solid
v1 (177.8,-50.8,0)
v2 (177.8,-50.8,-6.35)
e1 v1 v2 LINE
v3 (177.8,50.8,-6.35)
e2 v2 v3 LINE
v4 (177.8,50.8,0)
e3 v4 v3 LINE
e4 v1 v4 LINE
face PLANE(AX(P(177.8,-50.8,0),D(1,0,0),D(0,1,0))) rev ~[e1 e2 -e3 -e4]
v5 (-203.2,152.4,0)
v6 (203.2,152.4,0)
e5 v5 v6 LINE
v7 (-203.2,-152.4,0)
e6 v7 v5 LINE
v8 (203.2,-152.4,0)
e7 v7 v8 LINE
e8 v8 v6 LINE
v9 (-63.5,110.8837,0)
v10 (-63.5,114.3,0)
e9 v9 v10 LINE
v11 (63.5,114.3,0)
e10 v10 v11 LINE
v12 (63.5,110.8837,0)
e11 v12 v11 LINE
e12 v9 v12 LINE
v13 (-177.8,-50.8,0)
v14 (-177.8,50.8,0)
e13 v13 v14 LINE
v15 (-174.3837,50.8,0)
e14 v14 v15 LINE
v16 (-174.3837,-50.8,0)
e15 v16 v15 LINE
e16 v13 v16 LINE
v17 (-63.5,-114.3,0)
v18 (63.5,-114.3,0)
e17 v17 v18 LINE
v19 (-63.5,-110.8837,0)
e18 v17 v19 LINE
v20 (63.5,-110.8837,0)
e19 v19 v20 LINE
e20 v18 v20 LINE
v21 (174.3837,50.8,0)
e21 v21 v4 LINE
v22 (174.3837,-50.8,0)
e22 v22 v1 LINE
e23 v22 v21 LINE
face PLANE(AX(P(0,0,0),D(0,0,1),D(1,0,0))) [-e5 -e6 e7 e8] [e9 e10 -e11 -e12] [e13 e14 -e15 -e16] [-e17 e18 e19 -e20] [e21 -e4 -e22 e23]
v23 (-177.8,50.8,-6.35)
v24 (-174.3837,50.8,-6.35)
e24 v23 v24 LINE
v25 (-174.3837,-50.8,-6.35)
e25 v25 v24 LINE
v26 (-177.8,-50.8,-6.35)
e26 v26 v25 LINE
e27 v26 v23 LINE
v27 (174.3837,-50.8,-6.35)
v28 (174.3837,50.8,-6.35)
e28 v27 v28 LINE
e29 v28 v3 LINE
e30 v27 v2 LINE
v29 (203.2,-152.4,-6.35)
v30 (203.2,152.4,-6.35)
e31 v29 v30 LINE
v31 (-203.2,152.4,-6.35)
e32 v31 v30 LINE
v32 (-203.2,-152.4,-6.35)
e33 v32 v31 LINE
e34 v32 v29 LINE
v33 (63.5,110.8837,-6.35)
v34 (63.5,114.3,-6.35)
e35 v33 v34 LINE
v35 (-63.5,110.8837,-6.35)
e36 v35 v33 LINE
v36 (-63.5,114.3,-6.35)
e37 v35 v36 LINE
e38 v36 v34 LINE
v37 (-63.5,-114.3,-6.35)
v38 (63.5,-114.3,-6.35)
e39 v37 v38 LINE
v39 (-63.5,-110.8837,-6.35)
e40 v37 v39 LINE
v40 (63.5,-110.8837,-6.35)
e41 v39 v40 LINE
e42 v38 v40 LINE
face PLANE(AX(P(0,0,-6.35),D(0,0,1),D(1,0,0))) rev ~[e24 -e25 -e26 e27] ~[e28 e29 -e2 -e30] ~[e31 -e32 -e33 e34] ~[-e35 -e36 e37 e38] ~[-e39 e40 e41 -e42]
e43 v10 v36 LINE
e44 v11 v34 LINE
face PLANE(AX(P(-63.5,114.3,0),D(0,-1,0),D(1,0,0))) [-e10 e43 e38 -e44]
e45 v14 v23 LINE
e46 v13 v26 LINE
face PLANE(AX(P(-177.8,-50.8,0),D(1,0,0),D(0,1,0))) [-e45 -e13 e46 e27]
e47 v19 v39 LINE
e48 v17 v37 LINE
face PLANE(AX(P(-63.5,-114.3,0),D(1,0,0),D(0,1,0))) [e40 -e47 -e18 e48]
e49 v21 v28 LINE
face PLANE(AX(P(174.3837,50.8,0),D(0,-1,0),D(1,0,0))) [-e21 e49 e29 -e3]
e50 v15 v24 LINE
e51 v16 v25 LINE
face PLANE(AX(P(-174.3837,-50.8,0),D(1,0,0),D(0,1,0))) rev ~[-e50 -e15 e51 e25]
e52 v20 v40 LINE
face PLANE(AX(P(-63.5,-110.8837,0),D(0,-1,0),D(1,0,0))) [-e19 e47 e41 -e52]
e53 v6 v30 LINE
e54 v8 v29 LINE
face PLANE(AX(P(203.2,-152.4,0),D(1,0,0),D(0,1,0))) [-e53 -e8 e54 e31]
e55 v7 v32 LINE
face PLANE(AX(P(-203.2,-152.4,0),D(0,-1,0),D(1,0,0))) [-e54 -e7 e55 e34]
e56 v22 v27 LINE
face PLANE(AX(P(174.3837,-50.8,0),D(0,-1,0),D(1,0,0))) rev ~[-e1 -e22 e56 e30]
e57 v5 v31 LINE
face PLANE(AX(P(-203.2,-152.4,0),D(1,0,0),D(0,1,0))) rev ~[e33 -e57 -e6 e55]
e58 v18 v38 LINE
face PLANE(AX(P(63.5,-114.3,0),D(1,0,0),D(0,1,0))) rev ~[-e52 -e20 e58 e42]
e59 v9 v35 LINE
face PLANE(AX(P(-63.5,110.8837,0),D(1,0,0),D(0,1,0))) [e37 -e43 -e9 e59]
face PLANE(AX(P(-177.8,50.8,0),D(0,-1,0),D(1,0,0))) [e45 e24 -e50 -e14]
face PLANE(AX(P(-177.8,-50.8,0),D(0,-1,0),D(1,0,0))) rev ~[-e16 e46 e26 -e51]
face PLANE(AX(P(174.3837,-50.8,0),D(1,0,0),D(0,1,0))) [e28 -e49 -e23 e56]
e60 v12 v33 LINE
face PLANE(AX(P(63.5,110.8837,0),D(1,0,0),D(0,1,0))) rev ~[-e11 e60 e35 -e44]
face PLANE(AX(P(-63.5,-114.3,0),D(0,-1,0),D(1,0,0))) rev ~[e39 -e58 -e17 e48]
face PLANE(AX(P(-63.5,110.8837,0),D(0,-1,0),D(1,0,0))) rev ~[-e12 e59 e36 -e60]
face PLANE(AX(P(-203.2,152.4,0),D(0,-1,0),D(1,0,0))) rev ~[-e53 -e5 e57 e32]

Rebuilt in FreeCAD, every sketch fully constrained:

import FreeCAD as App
import Part
import Sketcher
from FreeCAD import Vector
Q = App.Units.Quantity

doc = App.newDocument("Part")
body = doc.addObject("PartDesign::Body", "Body")

# Sketch on XY plane
sketch1 = body.newObject("Sketcher::SketchObject", "Sketch")
sketch1.AttachmentSupport = (doc.getObject("XY_Plane"), [""])
sketch1.MapMode = "FlatFace"
sketch1.addGeometry(Part.LineSegment(Vector(-203.2, 152.4, 0), Vector(-203.2, -152.4, 0)), False)
sketch1.addGeometry(Part.LineSegment(Vector(-203.2, -152.4, 0), Vector(203.2, -152.4, 0)), False)
sketch1.addGeometry(Part.LineSegment(Vector(203.2, -152.4, 0), Vector(203.2, 152.4, 0)), False)
sketch1.addGeometry(Part.LineSegment(Vector(203.2, 152.4, 0), Vector(-203.2, 152.4, 0)), False)
sketch1.addGeometry(Part.LineSegment(Vector(63.5, -114.3, 0), Vector(-63.5, -114.3, 0)), False)
sketch1.addGeometry(Part.LineSegment(Vector(-63.5, -114.3, 0), Vector(-63.5, -110.9, 0)), False)
sketch1.addGeometry(Part.LineSegment(Vector(-63.5, -110.9, 0), Vector(63.5, -110.9, 0)), False)
sketch1.addGeometry(Part.LineSegment(Vector(63.5, -110.9, 0), Vector(63.5, -114.3, 0)), False)
sketch1.addGeometry(Part.LineSegment(Vector(-174.4, -50.8, 0), Vector(-177.8, -50.8, 0)), False)
sketch1.addGeometry(Part.LineSegment(Vector(-177.8, -50.8, 0), Vector(-177.8, 50.8, 0)), False)
sketch1.addGeometry(Part.LineSegment(Vector(-177.8, 50.8, 0), Vector(-174.4, 50.8, 0)), False)
sketch1.addGeometry(Part.LineSegment(Vector(-174.4, 50.8, 0), Vector(-174.4, -50.8, 0)), False)
sketch1.addGeometry(Part.LineSegment(Vector(177.8, -50.8, 0), Vector(174.4, -50.8, 0)), False)
sketch1.addGeometry(Part.LineSegment(Vector(174.4, -50.8, 0), Vector(174.4, 50.8, 0)), False)
sketch1.addGeometry(Part.LineSegment(Vector(174.4, 50.8, 0), Vector(177.8, 50.8, 0)), False)
sketch1.addGeometry(Part.LineSegment(Vector(177.8, 50.8, 0), Vector(177.8, -50.8, 0)), False)
sketch1.addGeometry(Part.LineSegment(Vector(63.5, 110.9, 0), Vector(-63.5, 110.9, 0)), False)
sketch1.addGeometry(Part.LineSegment(Vector(-63.5, 110.9, 0), Vector(-63.5, 114.3, 0)), False)
sketch1.addGeometry(Part.LineSegment(Vector(-63.5, 114.3, 0), Vector(63.5, 114.3, 0)), False)
sketch1.addGeometry(Part.LineSegment(Vector(63.5, 114.3, 0), Vector(63.5, 110.9, 0)), False)
sketch1.addConstraint(Sketcher.Constraint("Coincident", 0, 2, 1, 1))
sketch1.addConstraint(Sketcher.Constraint("Coincident", 1, 2, 2, 1))
sketch1.addConstraint(Sketcher.Constraint("Coincident", 2, 2, 3, 1))
sketch1.addConstraint(Sketcher.Constraint("Coincident", 3, 2, 0, 1))
sketch1.addConstraint(Sketcher.Constraint("Coincident", 4, 2, 5, 1))
sketch1.addConstraint(Sketcher.Constraint("Coincident", 5, 2, 6, 1))
sketch1.addConstraint(Sketcher.Constraint("Coincident", 6, 2, 7, 1))
sketch1.addConstraint(Sketcher.Constraint("Coincident", 7, 2, 4, 1))
sketch1.addConstraint(Sketcher.Constraint("Coincident", 8, 2, 9, 1))
sketch1.addConstraint(Sketcher.Constraint("Coincident", 9, 2, 10, 1))
sketch1.addConstraint(Sketcher.Constraint("Coincident", 10, 2, 11, 1))
sketch1.addConstraint(Sketcher.Constraint("Coincident", 11, 2, 8, 1))
sketch1.addConstraint(Sketcher.Constraint("Coincident", 12, 2, 13, 1))
sketch1.addConstraint(Sketcher.Constraint("Coincident", 13, 2, 14, 1))
sketch1.addConstraint(Sketcher.Constraint("Coincident", 14, 2, 15, 1))
sketch1.addConstraint(Sketcher.Constraint("Coincident", 15, 2, 12, 1))
sketch1.addConstraint(Sketcher.Constraint("Coincident", 16, 2, 17, 1))
sketch1.addConstraint(Sketcher.Constraint("Coincident", 17, 2, 18, 1))
sketch1.addConstraint(Sketcher.Constraint("Coincident", 18, 2, 19, 1))
sketch1.addConstraint(Sketcher.Constraint("Coincident", 19, 2, 16, 1))
sketch1.addConstraint(Sketcher.Constraint("Vertical", 0))
sketch1.addConstraint(Sketcher.Constraint("Horizontal", 1))
sketch1.addConstraint(Sketcher.Constraint("Vertical", 2))
sketch1.addConstraint(Sketcher.Constraint("Horizontal", 3))
sketch1.addConstraint(Sketcher.Constraint("Horizontal", 4))
sketch1.addConstraint(Sketcher.Constraint("Vertical", 5))
sketch1.addConstraint(Sketcher.Constraint("Horizontal", 6))
sketch1.addConstraint(Sketcher.Constraint("Vertical", 7))
sketch1.addConstraint(Sketcher.Constraint("Horizontal", 8))
sketch1.addConstraint(Sketcher.Constraint("Vertical", 9))
sketch1.addConstraint(Sketcher.Constraint("Horizontal", 10))
sketch1.addConstraint(Sketcher.Constraint("Vertical", 11))
sketch1.addConstraint(Sketcher.Constraint("Horizontal", 12))
sketch1.addConstraint(Sketcher.Constraint("Vertical", 13))
sketch1.addConstraint(Sketcher.Constraint("Horizontal", 14))
sketch1.addConstraint(Sketcher.Constraint("Vertical", 15))
sketch1.addConstraint(Sketcher.Constraint("Horizontal", 16))
sketch1.addConstraint(Sketcher.Constraint("Vertical", 17))
sketch1.addConstraint(Sketcher.Constraint("Horizontal", 18))
sketch1.addConstraint(Sketcher.Constraint("Vertical", 19))
sketch1.addConstraint(Sketcher.Constraint("Symmetric", 0, 2, 2, 2, -1, 1))
sketch1.addConstraint(Sketcher.Constraint("Symmetric", 10, 2, 12, 2, -1, 1))
sketch1.addConstraint(Sketcher.Constraint("Symmetric", 8, 2, 14, 2, -1, 1))
sketch1.addConstraint(Sketcher.Constraint("Symmetric", 6, 2, 16, 2, -1, 1))
sketch1.addConstraint(Sketcher.Constraint("Symmetric", 4, 2, 18, 2, -1, 1))
sketch1.addConstraint(Sketcher.Constraint("Horizontal", 11, 2, 12, 2))
sketch1.addConstraint(Sketcher.Constraint("Vertical", 5, 2, 16, 2))
sketch1.addConstraint(Sketcher.Constraint("Equal", 14, 5))
sketch1.addConstraint(Sketcher.Constraint("DistanceX", 1, 1, 1, 2, Q("16 in")))
sketch1.addConstraint(Sketcher.Constraint("DistanceX", 4, 2, 4, 1, Q("5 in")))
sketch1.addConstraint(Sketcher.Constraint("DistanceY", 0, 2, 0, 1, Q("12 in")))
sketch1.addConstraint(Sketcher.Constraint("DistanceY", 9, 1, 9, 2, Q("4 in")))
sketch1.addConstraint(Sketcher.Constraint("DistanceX", 8, 2, -1, 1, Q("7 in")))
sketch1.addConstraint(Sketcher.Constraint("DistanceY", 4, 2, -1, 1, Q("4.5 in")))
sketch1.addConstraint(Sketcher.Constraint("DistanceX", 8, 2, 8, 1, Q("0.1345 in")))
pad1 = body.newObject("PartDesign::Pad", "Pad")
pad1.Profile = sketch1
pad1.Length = Q("0.25 in")
pad1.Reversed = True

doc.recompute()
